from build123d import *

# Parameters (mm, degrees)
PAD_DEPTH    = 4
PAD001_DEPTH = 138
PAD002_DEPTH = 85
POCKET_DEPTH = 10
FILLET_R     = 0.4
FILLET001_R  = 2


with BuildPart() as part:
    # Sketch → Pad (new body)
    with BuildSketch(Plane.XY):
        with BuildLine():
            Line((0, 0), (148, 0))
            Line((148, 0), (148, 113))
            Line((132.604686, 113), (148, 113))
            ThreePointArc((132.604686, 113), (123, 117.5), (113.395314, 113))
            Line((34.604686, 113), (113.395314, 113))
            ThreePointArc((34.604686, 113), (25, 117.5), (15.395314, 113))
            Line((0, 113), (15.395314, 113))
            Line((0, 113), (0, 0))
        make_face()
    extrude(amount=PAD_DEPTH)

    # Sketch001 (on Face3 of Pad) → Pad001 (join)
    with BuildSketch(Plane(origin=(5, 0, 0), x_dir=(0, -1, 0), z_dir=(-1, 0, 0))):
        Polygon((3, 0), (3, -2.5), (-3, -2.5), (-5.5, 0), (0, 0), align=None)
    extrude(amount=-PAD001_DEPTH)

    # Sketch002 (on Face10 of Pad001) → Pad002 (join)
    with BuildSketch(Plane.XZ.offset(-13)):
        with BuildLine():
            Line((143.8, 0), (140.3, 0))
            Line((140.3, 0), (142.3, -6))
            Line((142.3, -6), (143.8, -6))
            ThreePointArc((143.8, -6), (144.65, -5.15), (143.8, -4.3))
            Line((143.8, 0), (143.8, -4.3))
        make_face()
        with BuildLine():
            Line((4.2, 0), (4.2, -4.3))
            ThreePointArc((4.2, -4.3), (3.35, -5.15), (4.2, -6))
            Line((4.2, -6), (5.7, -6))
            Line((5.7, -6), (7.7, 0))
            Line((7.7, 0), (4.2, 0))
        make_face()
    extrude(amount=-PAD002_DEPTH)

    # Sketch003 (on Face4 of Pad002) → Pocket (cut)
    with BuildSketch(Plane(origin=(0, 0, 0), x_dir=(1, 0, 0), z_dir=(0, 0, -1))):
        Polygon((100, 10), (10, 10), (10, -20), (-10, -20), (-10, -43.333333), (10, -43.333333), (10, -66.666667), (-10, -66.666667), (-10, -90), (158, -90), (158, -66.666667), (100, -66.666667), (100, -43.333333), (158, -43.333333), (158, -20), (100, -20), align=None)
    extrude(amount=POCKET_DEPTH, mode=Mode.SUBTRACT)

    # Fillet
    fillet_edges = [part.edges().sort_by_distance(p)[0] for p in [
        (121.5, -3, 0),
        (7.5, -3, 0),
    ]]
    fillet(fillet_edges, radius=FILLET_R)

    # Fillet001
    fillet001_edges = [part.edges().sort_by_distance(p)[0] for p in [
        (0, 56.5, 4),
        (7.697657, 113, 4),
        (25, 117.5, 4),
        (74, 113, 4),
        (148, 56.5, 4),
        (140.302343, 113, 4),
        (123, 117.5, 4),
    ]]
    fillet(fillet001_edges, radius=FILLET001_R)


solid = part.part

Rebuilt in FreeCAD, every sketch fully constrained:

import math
import FreeCAD as App
import Part
import Sketcher

V = App.Vector
Q = App.Units.Quantity


def edges_at(feature, points):
    """Names of the edges that pass closest to the given points."""
    edges = feature.Shape.Edges
    near = lambda p: min(range(len(edges)), key=lambda i: edges[i].distToShape(Part.Vertex(*p))[0])
    return sorted({f"Edge{near(p) + 1}" for p in points})

doc = App.newDocument("Part")
body = doc.addObject("PartDesign::Body", "Body")

# Sketch on XY plane
sketch1 = body.newObject("Sketcher::SketchObject", "Sketch")
sketch1.AttachmentSupport = (doc.getObject("XY_Plane"), [""])
sketch1.MapMode = "FlatFace"
sketch1.addGeometry([
    Part.LineSegment(V(0, 0, 0), V(148, 0, 0)),  # 0
    Part.LineSegment(V(148, 0, 0), V(148, 113, 0)),  # 1
    Part.LineSegment(V(148, 113, 0), V(132.604686, 113, 0)),  # 2
    Part.ArcOfCircle(Part.Circle(V(123, 105.000001, 0), V(0, 0, 1), 12.499999), math.radians(39.791818), math.radians(140.208182)),  # 3
    Part.LineSegment(V(113.395314, 113, 0), V(34.604686, 113, 0)),  # 4
    Part.ArcOfCircle(Part.Circle(V(25, 105.000001, 0), V(0, 0, 1), 12.499999), math.radians(39.791818), math.radians(140.208182)),  # 5
    Part.LineSegment(V(15.395314, 113, 0), V(0, 113, 0)),  # 6
    Part.LineSegment(V(0, 113, 0), V(0, 0, 0)),  # 7
], False)
sketch1.addConstraint([
    Sketcher.Constraint("Coincident", 0, 2, 1, 1),
    Sketcher.Constraint("Coincident", 1, 2, 2, 1),
    Sketcher.Constraint("Coincident", 2, 2, 3, 1),
    Sketcher.Constraint("Coincident", 3, 2, 4, 1),
    Sketcher.Constraint("Coincident", 4, 2, 5, 1),
    Sketcher.Constraint("Coincident", 5, 2, 6, 1),
    Sketcher.Constraint("Coincident", 6, 2, 7, 1),
    Sketcher.Constraint("Coincident", 7, 2, 0, 1),
    Sketcher.Constraint("Horizontal", 0),
    Sketcher.Constraint("Vertical", 1),
    Sketcher.Constraint("Horizontal", 2),
    Sketcher.Constraint("Horizontal", 4),
    Sketcher.Constraint("Horizontal", 6),
    Sketcher.Constraint("Vertical", 7),
    Sketcher.Constraint("Coincident", 7, 2, -1, 1),
    Sketcher.Constraint("Equal", 3, 5),
    Sketcher.Constraint("Horizontal", 3, 3, 5, 3),
    Sketcher.Constraint("Horizontal", 2, 2, 3, 2),
    Sketcher.Constraint("Horizontal", 4, 2, 5, 2),
    Sketcher.Constraint("Equal", 2, 6),
    Sketcher.Constraint("Radius", 3, 12.499999),
    Sketcher.Constraint("DistanceX", 0, 1, 0, 2, 148.0),
    Sketcher.Constraint("DistanceY", 1, 1, 1, 2, 113.0),
    Sketcher.Constraint("DistanceX", -1, 1, 3, 3, 123.0),
    Sketcher.Constraint("DistanceY", -1, 1, 3, 3, 105.000001),
])
pad1 = body.newObject("PartDesign::Pad", "Pad")
pad1.Profile = sketch1
pad1.Length = 4

# Sketch on YZ plane
sketch2 = body.newObject("Sketcher::SketchObject", "Sketch001")
sketch2.AttachmentSupport = (doc.getObject("YZ_Plane"), [""])
sketch2.MapMode = "FlatFace"
sketch2.AttachmentOffset = App.Placement(V(0, 0, 5), App.Rotation())
sketch2.addGeometry([
    Part.LineSegment(V(-3, -2.5, 0), V(-3, 0, 0)),
    Part.LineSegment(V(-3, 0, 0), V(5.5, 0, 0)),
    Part.LineSegment(V(5.5, 0, 0), V(3, -2.5, 0)),
    Part.LineSegment(V(3, -2.5, 0), V(-3, -2.5, 0)),
], False)
sketch2.addConstraint([
    Sketcher.Constraint("Coincident", 0, 2, 1, 1),
    Sketcher.Constraint("Coincident", 1, 2, 2, 1),
    Sketcher.Constraint("Coincident", 2, 2, 3, 1),
    Sketcher.Constraint("Coincident", 3, 2, 0, 1),
    Sketcher.Constraint("Vertical", 0),
    Sketcher.Constraint("Horizontal", 1),
    Sketcher.Constraint("Horizontal", 3),
    Sketcher.Constraint("PointOnObject", 0, 2, -1),
    Sketcher.Constraint("DistanceX", 3, 2, 3, 1, 6.0),
    Sketcher.Constraint("Angle", 2, Q("-135 deg")),
    Sketcher.Constraint("DistanceX", 1, 1, 1, 2, 8.5),
    Sketcher.Constraint("DistanceX", 0, 2, -1, 1, 3.0),
])
pad2 = body.newObject("PartDesign::Pad", "Pad001")
pad2.Profile = sketch2
pad2.Length = 138

# Sketch on XZ plane
sketch3 = body.newObject("Sketcher::SketchObject", "Sketch002")
sketch3.AttachmentSupport = (doc.getObject("XZ_Plane"), [""])
sketch3.MapMode = "FlatFace"
sketch3.AttachmentOffset = App.Placement(V(0, 0, -13), App.Rotation())
sketch3.addGeometry([
    Part.LineSegment(V(143.8, 0, 0), V(140.3, 0, 0)),  # 0
    Part.LineSegment(V(140.3, 0, 0), V(142.3, -6, 0)),  # 1
    Part.LineSegment(V(142.3, -6, 0), V(143.8, -6, 0)),  # 2
    Part.ArcOfCircle(Part.Circle(V(143.8, -5.15, 0), V(0, 0, 1), 0.85), math.radians(-90), math.radians(90)),  # 3
    Part.LineSegment(V(143.8, -4.3, 0), V(143.8, 0, 0)),  # 4
    Part.LineSegment(V(4.2, 0, 0), V(4.2, -4.3, 0)),  # 5
    Part.ArcOfCircle(Part.Circle(V(4.2, -5.15, 0), V(0, 0, 1), 0.85), math.radians(90), math.radians(270)),  # 6
    Part.LineSegment(V(4.2, -6, 0), V(5.7, -6, 0)),  # 7
    Part.LineSegment(V(5.7, -6, 0), V(7.7, 0, 0)),  # 8
    Part.LineSegment(V(7.7, 0, 0), V(4.2, 0, 0)),  # 9
], False)
sketch3.addConstraint([
    Sketcher.Constraint("Coincident", 0, 2, 1, 1),
    Sketcher.Constraint("Coincident", 1, 2, 2, 1),
    Sketcher.Constraint("Tangent", 2, 2, 3, 1),
    Sketcher.Constraint("Coincident", 3, 2, 4, 1),
    Sketcher.Constraint("Coincident", 4, 2, 0, 1),
    Sketcher.Constraint("Coincident", 5, 2, 6, 1),
    Sketcher.Constraint("Tangent", 6, 2, 7, 1),
    Sketcher.Constraint("Coincident", 7, 2, 8, 1),
    Sketcher.Constraint("Coincident", 8, 2, 9, 1),
    Sketcher.Constraint("Coincident", 9, 2, 5, 1),
    Sketcher.Constraint("Horizontal", 0),
    Sketcher.Constraint("Horizontal", 2),
    Sketcher.Constraint("Vertical", 4),
    Sketcher.Constraint("Vertical", 5),
    Sketcher.Constraint("Horizontal", 7),
    Sketcher.Constraint("Horizontal", 9),
    Sketcher.Constraint("Equal", 3, 6),
    Sketcher.Constraint("PointOnObject", 0, 2, -1),
    Sketcher.Constraint("PointOnObject", 8, 2, -1),
    Sketcher.Constraint("Horizontal", 3, 3, 6, 3),
    Sketcher.Constraint("Vertical", 2, 2, 3, 2),
    Sketcher.Constraint("Vertical", 6, 3, 5, 2),
    Sketcher.Constraint("Equal", 2, 7),
    Sketcher.Constraint("Equal", 0, 9),
    Sketcher.Constraint("Radius", 3, 0.85),
    Sketcher.Constraint("DistanceX", 0, 2, 0, 1, 3.5),
    Sketcher.Constraint("DistanceX", 2, 1, 2, 2, 1.5),
    Sketcher.Constraint("DistanceY", 4, 1, 4, 2, 4.3),
    Sketcher.Constraint("DistanceX", -1, 1, 3, 3, 143.8),
    Sketcher.Constraint("DistanceX", -1, 1, 6, 3, 4.2),
])
pad3 = body.newObject("PartDesign::Pad", "Pad002")
pad3.Profile = sketch3
pad3.Length = 85
pad3.Reversed = True

# Sketch on XY plane
sketch4 = body.newObject("Sketcher::SketchObject", "Sketch003")
sketch4.AttachmentSupport = (doc.getObject("XY_Plane"), [""])
sketch4.MapMode = "FlatFace"
sketch4.addGeometry([
    Part.LineSegment(V(100, -10, 0), V(10, -10, 0)),  # 0
    Part.LineSegment(V(10, -10, 0), V(10, 20, 0)),  # 1
    Part.LineSegment(V(10, 20, 0), V(-10, 20, 0)),  # 2
    Part.LineSegment(V(-10, 20, 0), V(-10, 43.333333, 0)),  # 3
    Part.LineSegment(V(-10, 43.333333, 0), V(10, 43.333333, 0)),  # 4
    Part.LineSegment(V(10, 43.333333, 0), V(10, 66.666667, 0)),  # 5
    Part.LineSegment(V(10, 66.666667, 0), V(-10, 66.666667, 0)),  # 6
    Part.LineSegment(V(-10, 66.666667, 0), V(-10, 90, 0)),  # 7
    Part.LineSegment(V(-10, 90, 0), V(158, 90, 0)),  # 8
    Part.LineSegment(V(158, 90, 0), V(158, 66.666667, 0)),  # 9
    Part.LineSegment(V(158, 66.666667, 0), V(100, 66.666667, 0)),  # 10
    Part.LineSegment(V(100, 66.666667, 0), V(100, 43.333333, 0)),  # 11
    Part.LineSegment(V(100, 43.333333, 0), V(158, 43.333333, 0)),  # 12
    Part.LineSegment(V(158, 43.333333, 0), V(158, 20, 0)),  # 13
    Part.LineSegment(V(158, 20, 0), V(100, 20, 0)),  # 14
    Part.LineSegment(V(100, 20, 0), V(100, -10, 0)),  # 15
], False)
sketch4.addConstraint([
    Sketcher.Constraint("Coincident", 0, 2, 1, 1),
    Sketcher.Constraint("Coincident", 1, 2, 2, 1),
    Sketcher.Constraint("Coincident", 2, 2, 3, 1),
    Sketcher.Constraint("Coincident", 3, 2, 4, 1),
    Sketcher.Constraint("Coincident", 4, 2, 5, 1),
    Sketcher.Constraint("Coincident", 5, 2, 6, 1),
    Sketcher.Constraint("Coincident", 6, 2, 7, 1),
    Sketcher.Constraint("Coincident", 7, 2, 8, 1),
    Sketcher.Constraint("Coincident", 8, 2, 9, 1),
    Sketcher.Constraint("Coincident", 9, 2, 10, 1),
    Sketcher.Constraint("Coincident", 10, 2, 11, 1),
    Sketcher.Constraint("Coincident", 11, 2, 12, 1),
    Sketcher.Constraint("Coincident", 12, 2, 13, 1),
    Sketcher.Constraint("Coincident", 13, 2, 14, 1),
    Sketcher.Constraint("Coincident", 14, 2, 15, 1),
    Sketcher.Constraint("Coincident", 15, 2, 0, 1),
    Sketcher.Constraint("Horizontal", 0),
    Sketcher.Constraint("Vertical", 1),
    Sketcher.Constraint("Horizontal", 2),
    Sketcher.Constraint("Vertical", 3),
    Sketcher.Constraint("Horizontal", 4),
    Sketcher.Constraint("Vertical", 5),
    Sketcher.Constraint("Horizontal", 6),
    Sketcher.Constraint("Vertical", 7),
    Sketcher.Constraint("Horizontal", 8),
    Sketcher.Constraint("Vertical", 9),
    Sketcher.Constraint("Horizontal", 10),
    Sketcher.Constraint("Vertical", 11),
    Sketcher.Constraint("Horizontal", 12),
    Sketcher.Constraint("Vertical", 13),
    Sketcher.Constraint("Horizontal", 14),
    Sketcher.Constraint("Vertical", 15),
    Sketcher.Constraint("Horizontal", 6, 2, 9, 2),
    Sketcher.Constraint("Horizontal", 4, 2, 11, 2),
    Sketcher.Constraint("Horizontal", 2, 2, 13, 2),
    Sketcher.Constraint("Vertical", 1, 2, 4, 2),
    Sketcher.Constraint("Vertical", 3, 2, 6, 2),
    Sketcher.Constraint("Vertical", 9, 2, 12, 2),
    Sketcher.Constraint("Vertical", 11, 2, 14, 2),
    Sketcher.Constraint("Equal", 3, 5),
    Sketcher.Constraint("Equal", 5, 7),
    Sketcher.Constraint("DistanceX", 0, 2, 0, 1, 90.0),
    Sketcher.Constraint("DistanceX", 2, 2, 2, 1, 20.0),
    Sketcher.Constraint("DistanceX", 8, 1, 8, 2, 168.0),
    Sketcher.Constraint("DistanceY", 1, 1, 1, 2, 30.0),
    Sketcher.Constraint("DistanceX", -1, 1, 0, 2, 10.0),
    Sketcher.Constraint("DistanceY", 0, 2, -1, 1, 10.0),
    Sketcher.Constraint("DistanceY", -1, 1, 7, 2, 90.0),
])
pocket1 = body.newObject("PartDesign::Pocket", "Pocket")
pocket1.Profile = sketch4
pocket1.Length = 10
doc.recompute()

fillet = body.newObject("PartDesign::Fillet", "Fillet")
fillet.Base = (pocket1, edges_at(pocket1, [(121.5, -3, 0), (7.5, -3, 0)]))
fillet.Radius = 0.4
doc.recompute()

fillet2 = body.newObject("PartDesign::Fillet", "Fillet001")
fillet2.Base = (fillet, edges_at(fillet, [
    (0, 56.5, 4),
    (7.698, 113, 4),
    (25, 117.5, 4),
    (74, 113, 4),
    (148, 56.5, 4),
    (140.302, 113, 4),
    (123, 117.5, 4),
]))
fillet2.Radius = 2

doc.recompute()
